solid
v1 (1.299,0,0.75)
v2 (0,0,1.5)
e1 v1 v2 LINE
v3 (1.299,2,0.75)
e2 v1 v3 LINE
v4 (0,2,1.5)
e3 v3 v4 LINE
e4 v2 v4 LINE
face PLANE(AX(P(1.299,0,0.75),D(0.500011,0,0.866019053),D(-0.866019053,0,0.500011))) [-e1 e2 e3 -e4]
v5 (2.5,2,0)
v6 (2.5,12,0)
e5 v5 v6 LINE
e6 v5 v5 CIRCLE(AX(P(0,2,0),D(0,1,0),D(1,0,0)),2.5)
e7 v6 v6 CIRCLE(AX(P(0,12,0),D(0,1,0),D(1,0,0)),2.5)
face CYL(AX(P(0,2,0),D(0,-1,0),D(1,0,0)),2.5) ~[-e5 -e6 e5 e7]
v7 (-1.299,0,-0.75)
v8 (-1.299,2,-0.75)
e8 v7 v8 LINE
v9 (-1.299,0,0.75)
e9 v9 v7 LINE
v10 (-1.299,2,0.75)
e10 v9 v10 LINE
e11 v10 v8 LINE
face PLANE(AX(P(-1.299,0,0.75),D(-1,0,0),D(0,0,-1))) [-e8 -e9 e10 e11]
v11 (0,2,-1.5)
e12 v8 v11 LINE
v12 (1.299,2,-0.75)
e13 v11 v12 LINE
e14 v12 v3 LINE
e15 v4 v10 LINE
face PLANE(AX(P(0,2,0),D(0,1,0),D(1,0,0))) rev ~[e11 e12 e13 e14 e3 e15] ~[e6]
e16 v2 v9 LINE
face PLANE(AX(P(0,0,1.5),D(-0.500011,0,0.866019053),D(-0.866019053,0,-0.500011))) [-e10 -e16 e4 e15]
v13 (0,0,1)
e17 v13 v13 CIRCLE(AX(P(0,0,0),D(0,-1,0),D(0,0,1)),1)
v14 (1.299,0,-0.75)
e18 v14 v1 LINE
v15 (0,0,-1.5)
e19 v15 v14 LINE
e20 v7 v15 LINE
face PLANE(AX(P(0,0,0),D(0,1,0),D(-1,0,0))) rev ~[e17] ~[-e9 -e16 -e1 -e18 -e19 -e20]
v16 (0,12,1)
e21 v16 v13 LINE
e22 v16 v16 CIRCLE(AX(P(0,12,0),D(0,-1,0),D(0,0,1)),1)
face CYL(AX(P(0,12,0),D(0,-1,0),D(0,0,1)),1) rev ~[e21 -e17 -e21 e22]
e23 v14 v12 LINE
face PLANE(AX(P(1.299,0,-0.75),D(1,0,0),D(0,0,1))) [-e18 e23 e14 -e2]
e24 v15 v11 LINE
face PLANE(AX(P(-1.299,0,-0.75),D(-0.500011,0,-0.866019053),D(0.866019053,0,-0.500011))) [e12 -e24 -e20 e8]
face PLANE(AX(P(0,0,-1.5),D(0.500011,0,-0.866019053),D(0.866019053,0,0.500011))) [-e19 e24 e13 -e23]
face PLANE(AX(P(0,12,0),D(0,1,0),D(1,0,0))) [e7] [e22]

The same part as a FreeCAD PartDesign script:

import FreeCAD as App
import Part
import Sketcher

V = App.Vector
Q = App.Units.Quantity

doc = App.newDocument("Part")
params = doc.addObject("Spreadsheet::Sheet", "Params")
for row, (alias, value) in enumerate([
    ("sketch1_height", "1.5 mm"),
    ("pad1_length", "2 mm"),
    ("sketch2_diameter", "5 mm"),
    ("pad2_length", "10 mm"),
    ("sketch3_diameter", "2 mm"),
    ("hole_diameter", "2 mm"),
], start=1):
    params.set(f"A{row}", alias)
    params.set(f"B{row}", "=" + value)
    params.setAlias(f"B{row}", alias)

body = doc.addObject("PartDesign::Body", "Body")

sketch1 = body.newObject("Sketcher::SketchObject", "Sketch")
sketch1.AttachmentSupport = (doc.getObject("XZ_Plane"), [""])
sketch1.MapMode = "FlatFace"
sketch1.addGeometry(Part.LineSegment(V(1.3, -0.8, 0), V(0, -1.5, 0)), False)
sketch1.addGeometry(Part.LineSegment(V(0, -1.5, 0), V(-1.3, -0.8, 0)), False)
sketch1.addGeometry(Part.LineSegment(V(-1.3, -0.8, 0), V(-1.3, 0.8, 0)), False)
sketch1.addGeometry(Part.LineSegment(V(-1.3, 0.8, 0), V(0, 1.5, 0)), False)
sketch1.addGeometry(Part.LineSegment(V(0, 1.5, 0), V(1.3, 0.8, 0)), False)
sketch1.addGeometry(Part.LineSegment(V(1.3, 0.8, 0), V(1.3, -0.8, 0)), False)
sketch1.addConstraint(Sketcher.Constraint("Coincident", 0, 2, 1, 1))
sketch1.addConstraint(Sketcher.Constraint("Coincident", 1, 2, 2, 1))
sketch1.addConstraint(Sketcher.Constraint("Coincident", 2, 2, 3, 1))
sketch1.addConstraint(Sketcher.Constraint("Coincident", 3, 2, 4, 1))
sketch1.addConstraint(Sketcher.Constraint("Coincident", 4, 2, 5, 1))
sketch1.addConstraint(Sketcher.Constraint("Coincident", 5, 2, 0, 1))
sketch1.addConstraint(Sketcher.Constraint("Vertical", 2))
sketch1.addConstraint(Sketcher.Constraint("Vertical", 5))
sketch1.addConstraint(Sketcher.Constraint("Symmetric", 0, 2, 3, 2, -1, 1))
sketch1.addConstraint(Sketcher.Constraint("Symmetric", 1, 2, 4, 2, -1, 1))
sketch1.addConstraint(Sketcher.Constraint("PointOnObject", 0, 2, -2))
sketch1.addConstraint(Sketcher.Constraint("Parallel", 0, 3))
sketch1.addConstraint(Sketcher.Constraint("Horizontal", 2, 2, 4, 2))
sketch1.addConstraint(Sketcher.Constraint("DistanceY", 0, 2, 3, 2, 3.0))
sketch1.addConstraint(Sketcher.Constraint("Angle", 0, Q("-149.9993 deg")))
sketch1.addConstraint(Sketcher.Constraint("DistanceY", 2, 1, 2, 2, 1.5))
sketch1.setExpression("Constraints[15]", "Params.sketch1_height")
pad1 = body.newObject("PartDesign::Pad", "Pad")
pad1.Profile = sketch1
pad1.setExpression("Length", "Params.pad1_length")
pad1.Reversed = True

sketch2 = body.newObject("Sketcher::SketchObject", "Sketch001")
sketch2.AttachmentSupport = (doc.getObject("XZ_Plane"), [""])
sketch2.MapMode = "FlatFace"
sketch2.AttachmentOffset = App.Placement(V(0, 0, -2), App.Rotation())
sketch2.addGeometry(Part.Circle(V(0, 0, 0), V(0, 0, 1), 2.5), False)
sketch2.addConstraint(Sketcher.Constraint("Coincident", 0, 3, -1, 1))
sketch2.addConstraint(Sketcher.Constraint("Diameter", 0, 5.0))
sketch2.setExpression("Constraints[1]", "Params.sketch2_diameter")
pad2 = body.newObject("PartDesign::Pad", "Pad001")
pad2.Profile = sketch2
pad2.setExpression("Length", "Params.pad2_length")
pad2.Reversed = True

sketch3 = body.newObject("Sketcher::SketchObject", "Sketch002")
sketch3.AttachmentSupport = (doc.getObject("XZ_Plane"), [""])
sketch3.MapMode = "FlatFace"
sketch3.AttachmentOffset = App.Placement(V(0, 0, -12), App.Rotation())
sketch3.addGeometry(Part.Circle(V(0, 0, 0), V(0, 0, 1), 1), False)
sketch3.addConstraint(Sketcher.Constraint("Coincident", 0, 3, -1, 1))
sketch3.addConstraint(Sketcher.Constraint("Diameter", 0, 2.0))
sketch3.setExpression("Constraints[1]", "Params.sketch3_diameter")
doc.recompute()
hole = body.newObject("PartDesign::Hole", "Hole")
hole.Profile = sketch3
hole.ThreadType = "None"
hole.setExpression("Diameter", "Params.hole_diameter")
hole.DepthType = "ThroughAll"
hole.Reversed = True

doc.recompute()
